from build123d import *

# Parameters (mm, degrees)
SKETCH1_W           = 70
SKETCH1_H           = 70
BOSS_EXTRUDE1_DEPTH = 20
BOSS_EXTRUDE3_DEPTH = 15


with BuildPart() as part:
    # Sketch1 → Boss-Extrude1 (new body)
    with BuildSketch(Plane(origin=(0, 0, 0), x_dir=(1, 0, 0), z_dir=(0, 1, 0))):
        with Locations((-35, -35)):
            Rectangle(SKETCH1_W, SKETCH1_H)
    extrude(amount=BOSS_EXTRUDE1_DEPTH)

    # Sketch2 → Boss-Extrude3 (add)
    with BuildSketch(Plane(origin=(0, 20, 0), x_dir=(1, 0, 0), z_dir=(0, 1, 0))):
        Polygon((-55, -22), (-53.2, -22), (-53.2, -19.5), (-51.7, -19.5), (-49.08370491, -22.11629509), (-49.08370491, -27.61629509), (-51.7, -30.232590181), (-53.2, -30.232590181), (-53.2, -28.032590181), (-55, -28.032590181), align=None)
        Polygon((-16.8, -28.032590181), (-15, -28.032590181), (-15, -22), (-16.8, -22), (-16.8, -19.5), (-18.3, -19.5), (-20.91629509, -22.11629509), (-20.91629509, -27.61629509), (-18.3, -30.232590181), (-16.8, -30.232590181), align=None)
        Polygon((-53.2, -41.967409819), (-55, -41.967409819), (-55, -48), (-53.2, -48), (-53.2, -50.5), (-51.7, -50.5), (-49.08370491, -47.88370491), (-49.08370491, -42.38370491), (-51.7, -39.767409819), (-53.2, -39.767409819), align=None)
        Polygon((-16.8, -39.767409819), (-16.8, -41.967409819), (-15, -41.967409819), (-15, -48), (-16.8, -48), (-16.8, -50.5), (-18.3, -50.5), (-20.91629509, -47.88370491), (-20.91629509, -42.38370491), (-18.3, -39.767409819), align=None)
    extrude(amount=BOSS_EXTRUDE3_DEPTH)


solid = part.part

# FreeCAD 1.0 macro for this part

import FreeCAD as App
import Part
import Sketcher
from FreeCAD import Vector

doc = App.newDocument("Part")
body = doc.addObject("PartDesign::Body", "Body")

# Sketch on XZ plane
sketch1 = body.newObject("Sketcher::SketchObject", "Sketch")
sketch1.AttachmentSupport = (doc.getObject("XZ_Plane"), [""])
sketch1.MapMode = "FlatFace"
sketch1.addGeometry([
    Part.LineSegment(Vector(-70, 0, 0), Vector(-70, 70, 0)),
    Part.LineSegment(Vector(-70, 70, 0), Vector(0, 70, 0)),
    Part.LineSegment(Vector(0, 70, 0), Vector(0, 0, 0)),
    Part.LineSegment(Vector(0, 0, 0), Vector(-70, 0, 0)),
], False)
sketch1.addConstraint([
    Sketcher.Constraint("Coincident", 0, 2, 1, 1),
    Sketcher.Constraint("Coincident", 1, 2, 2, 1),
    Sketcher.Constraint("Coincident", 2, 2, 3, 1),
    Sketcher.Constraint("Coincident", 3, 2, 0, 1),
    Sketcher.Constraint("Vertical", 0),
    Sketcher.Constraint("Horizontal", 1),
    Sketcher.Constraint("Vertical", 2),
    Sketcher.Constraint("Horizontal", 3),
    Sketcher.Constraint("Coincident", 2, 2, -1, 1),
    Sketcher.Constraint("Equal", 3, 0),
    Sketcher.Constraint("DistanceX", 1, 1, 1, 2, 70.0),
])
pad1 = body.newObject("PartDesign::Pad", "Pad")
pad1.Profile = sketch1
pad1.Length = 20
pad1.Reversed = True

# Sketch on XZ plane
sketch2 = body.newObject("Sketcher::SketchObject", "Sketch001")
sketch2.AttachmentSupport = (doc.getObject("XZ_Plane"), [""])
sketch2.MapMode = "FlatFace"
sketch2.AttachmentOffset = App.Placement(Vector(0, 0, -20), App.Rotation())
sketch2.addGeometry([
    Part.LineSegment(Vector(-53.2, 22, 0), Vector(-55, 22, 0)),  # 0
    Part.LineSegment(Vector(-55, 22, 0), Vector(-55, 28.03259, 0)),  # 1
    Part.LineSegment(Vector(-55, 28.03259, 0), Vector(-53.2, 28.03259, 0)),  # 2
    Part.LineSegment(Vector(-53.2, 28.03259, 0), Vector(-53.2, 30.23259, 0)),  # 3
    Part.LineSegment(Vector(-53.2, 30.23259, 0), Vector(-51.7, 30.23259, 0)),  # 4
    Part.LineSegment(Vector(-51.7, 30.23259, 0), Vector(-49.083705, 27.616295, 0)),  # 5
    Part.LineSegment(Vector(-49.083705, 27.616295, 0), Vector(-49.083705, 22.116295, 0)),  # 6
    Part.LineSegment(Vector(-49.083705, 22.116295, 0), Vector(-51.7, 19.5, 0)),  # 7
    Part.LineSegment(Vector(-51.7, 19.5, 0), Vector(-53.2, 19.5, 0)),  # 8
    Part.LineSegment(Vector(-53.2, 19.5, 0), Vector(-53.2, 22, 0)),  # 9
    Part.LineSegment(Vector(-16.8, 28.03259, 0), Vector(-15, 28.03259, 0)),  # 10
    Part.LineSegment(Vector(-15, 28.03259, 0), Vector(-15, 22, 0)),  # 11
    Part.LineSegment(Vector(-15, 22, 0), Vector(-16.8, 22, 0)),  # 12
    Part.LineSegment(Vector(-16.8, 22, 0), Vector(-16.8, 19.5, 0)),  # 13
    Part.LineSegment(Vector(-16.8, 19.5, 0), Vector(-18.3, 19.5, 0)),  # 14
    Part.LineSegment(Vector(-18.3, 19.5, 0), Vector(-20.916295, 22.116295, 0)),  # 15
    Part.LineSegment(Vector(-20.916295, 22.116295, 0), Vector(-20.916295, 27.616295, 0)),  # 16
    Part.LineSegment(Vector(-20.916295, 27.616295, 0), Vector(-18.3, 30.23259, 0)),  # 17
    Part.LineSegment(Vector(-18.3, 30.23259, 0), Vector(-16.8, 30.23259, 0)),  # 18
    Part.LineSegment(Vector(-16.8, 30.23259, 0), Vector(-16.8, 28.03259, 0)),  # 19
    Part.LineSegment(Vector(-53.2, 41.96741, 0), Vector(-55, 41.96741, 0)),  # 20
    Part.LineSegment(Vector(-55, 41.96741, 0), Vector(-55, 48, 0)),  # 21
    Part.LineSegment(Vector(-55, 48, 0), Vector(-53.2, 48, 0)),  # 22
    Part.LineSegment(Vector(-53.2, 48, 0), Vector(-53.2, 50.5, 0)),  # 23
    Part.LineSegment(Vector(-53.2, 50.5, 0), Vector(-51.7, 50.5, 0)),  # 24
    Part.LineSegment(Vector(-51.7, 50.5, 0), Vector(-49.083705, 47.883705, 0)),  # 25
    Part.LineSegment(Vector(-49.083705, 47.883705, 0), Vector(-49.083705, 42.383705, 0)),  # 26
    Part.LineSegment(Vector(-49.083705, 42.383705, 0), Vector(-51.7, 39.76741, 0)),  # 27
    Part.LineSegment(Vector(-51.7, 39.76741, 0), Vector(-53.2, 39.76741, 0)),  # 28
    Part.LineSegment(Vector(-53.2, 39.76741, 0), Vector(-53.2, 41.96741, 0)),  # 29
    Part.LineSegment(Vector(-16.8, 41.96741, 0), Vector(-16.8, 39.76741, 0)),  # 30
    Part.LineSegment(Vector(-16.8, 39.76741, 0), Vector(-18.3, 39.76741, 0)),  # 31
    Part.LineSegment(Vector(-18.3, 39.76741, 0), Vector(-20.916295, 42.383705, 0)),  # 32
    Part.LineSegment(Vector(-20.916295, 42.383705, 0), Vector(-20.916295, 47.883705, 0)),  # 33
    Part.LineSegment(Vector(-20.916295, 47.883705, 0), Vector(-18.3, 50.5, 0)),  # 34
    Part.LineSegment(Vector(-18.3, 50.5, 0), Vector(-16.8, 50.5, 0)),  # 35
    Part.LineSegment(Vector(-16.8, 50.5, 0), Vector(-16.8, 48, 0)),  # 36
    Part.LineSegment(Vector(-16.8, 48, 0), Vector(-15, 48, 0)),  # 37
    Part.LineSegment(Vector(-15, 48, 0), Vector(-15, 41.96741, 0)),  # 38
    Part.LineSegment(Vector(-15, 41.96741, 0), Vector(-16.8, 41.96741, 0)),  # 39
], False)
sketch2.addConstraint([
    Sketcher.Constraint("Coincident", 0, 2, 1, 1),
    Sketcher.Constraint("Coincident", 1, 2, 2, 1),
    Sketcher.Constraint("Coincident", 2, 2, 3, 1),
    Sketcher.Constraint("Coincident", 3, 2, 4, 1),
    Sketcher.Constraint("Coincident", 4, 2, 5, 1),
    Sketcher.Constraint("Coincident", 5, 2, 6, 1),
    Sketcher.Constraint("Coincident", 6, 2, 7, 1),
    Sketcher.Constraint("Coincident", 7, 2, 8, 1),
    Sketcher.Constraint("Coincident", 8, 2, 9, 1),
    Sketcher.Constraint("Coincident", 9, 2, 0, 1),
    Sketcher.Constraint("Coincident", 10, 2, 11, 1),
    Sketcher.Constraint("Coincident", 11, 2, 12, 1),
    Sketcher.Constraint("Coincident", 12, 2, 13, 1),
    Sketcher.Constraint("Coincident", 13, 2, 14, 1),
    Sketcher.Constraint("Coincident", 14, 2, 15, 1),
    Sketcher.Constraint("Coincident", 15, 2, 16, 1),
    Sketcher.Constraint("Coincident", 16, 2, 17, 1),
    Sketcher.Constraint("Coincident", 17, 2, 18, 1),
    Sketcher.Constraint("Coincident", 18, 2, 19, 1),
    Sketcher.Constraint("Coincident", 19, 2, 10, 1),
    Sketcher.Constraint("Coincident", 20, 2, 21, 1),
    Sketcher.Constraint("Coincident", 21, 2, 22, 1),
    Sketcher.Constraint("Coincident", 22, 2, 23, 1),
    Sketcher.Constraint("Coincident", 23, 2, 24, 1),
    Sketcher.Constraint("Coincident", 24, 2, 25, 1),
    Sketcher.Constraint("Coincident", 25, 2, 26, 1),
    Sketcher.Constraint("Coincident", 26, 2, 27, 1),
    Sketcher.Constraint("Coincident", 27, 2, 28, 1),
    Sketcher.Constraint("Coincident", 28, 2, 29, 1),
    Sketcher.Constraint("Coincident", 29, 2, 20, 1),
    Sketcher.Constraint("Coincident", 30, 2, 31, 1),
    Sketcher.Constraint("Coincident", 31, 2, 32, 1),
    Sketcher.Constraint("Coincident", 32, 2, 33, 1),
    Sketcher.Constraint("Coincident", 33, 2, 34, 1),
    Sketcher.Constraint("Coincident", 34, 2, 35, 1),
    Sketcher.Constraint("Coincident", 35, 2, 36, 1),
    Sketcher.Constraint("Coincident", 36, 2, 37, 1),
    Sketcher.Constraint("Coincident", 37, 2, 38, 1),
    Sketcher.Constraint("Coincident", 38, 2, 39, 1),
    Sketcher.Constraint("Coincident", 39, 2, 30, 1),
    Sketcher.Constraint("Horizontal", 0),
    Sketcher.Constraint("Vertical", 1),
    Sketcher.Constraint("Horizontal", 2),
    Sketcher.Constraint("Vertical", 3),
    Sketcher.Constraint("Horizontal", 4),
    Sketcher.Constraint("Vertical", 6),
    Sketcher.Constraint("Horizontal", 8),
    Sketcher.Constraint("Vertical", 9),
    Sketcher.Constraint("Horizontal", 10),
    Sketcher.Constraint("Vertical", 11),
    Sketcher.Constraint("Horizontal", 12),
    Sketcher.Constraint("Vertical", 13),
    Sketcher.Constraint("Horizontal", 14),
    Sketcher.Constraint("Vertical", 16),
    Sketcher.Constraint("Horizontal", 18),
    Sketcher.Constraint("Vertical", 19),
    Sketcher.Constraint("Horizontal", 20),
    Sketcher.Constraint("Vertical", 21),
    Sketcher.Constraint("Horizontal", 22),
    Sketcher.Constraint("Vertical", 23),
    Sketcher.Constraint("Horizontal", 24),
    Sketcher.Constraint("Vertical", 26),
    Sketcher.Constraint("Horizontal", 28),
    Sketcher.Constraint("Vertical", 29),
    Sketcher.Constraint("Vertical", 30),
    Sketcher.Constraint("Horizontal", 31),
    Sketcher.Constraint("Vertical", 33),
    Sketcher.Constraint("Horizontal", 35),
    Sketcher.Constraint("Vertical", 36),
    Sketcher.Constraint("Horizontal", 37),
    Sketcher.Constraint("Vertical", 38),
    Sketcher.Constraint("Horizontal", 39),
    Sketcher.Constraint("Perpendicular", 5, 7),
    Sketcher.Constraint("Perpendicular", 7, 15),
    Sketcher.Constraint("Perpendicular", 15, 17),
    Sketcher.Constraint("Perpendicular", 17, 25),
    Sketcher.Constraint("Perpendicular", 25, 27),
    Sketcher.Constraint("Perpendicular", 27, 32),
    Sketcher.Constraint("Perpendicular", 32, 34),
    Sketcher.Constraint("Horizontal", 2, 2, 10, 2),
    Sketcher.Constraint("Horizontal", 9, 2, 11, 2),
    Sketcher.Constraint("Horizontal", 8, 2, 13, 2),
    Sketcher.Constraint("Horizontal", 6, 2, 15, 2),
    Sketcher.Constraint("Horizontal", 5, 2, 16, 2),
    Sketcher.Constraint("Horizontal", 4, 2, 17, 2),
    Sketcher.Constraint("Horizontal", 28, 2, 30, 2),
    Sketcher.Constraint("Horizontal", 26, 2, 32, 2),
    Sketcher.Constraint("Horizontal", 25, 2, 33, 2),
    Sketcher.Constraint("Horizontal", 24, 2, 34, 2),
    Sketcher.Constraint("Horizontal", 22, 2, 36, 2),
    Sketcher.Constraint("Horizontal", 29, 2, 38, 2),
    Sketcher.Constraint("Vertical", 4, 2, 7, 2),
    Sketcher.Constraint("Vertical", 3, 2, 8, 2),
    Sketcher.Constraint("Vertical", 14, 2, 17, 2),
    Sketcher.Constraint("Vertical", 13, 2, 18, 2),
    Sketcher.Constraint("Vertical", 1, 2, 20, 2),
    Sketcher.Constraint("Vertical", 9, 2, 22, 2),
    Sketcher.Constraint("Vertical", 7, 2, 24, 2),
    Sketcher.Constraint("Vertical", 6, 2, 25, 2),
    Sketcher.Constraint("Vertical", 24, 2, 27, 2),
    Sketcher.Constraint("Vertical", 23, 2, 28, 2),
    Sketcher.Constraint("Vertical", 19, 2, 30, 2),
    Sketcher.Constraint("Vertical", 17, 2, 31, 2),
    Sketcher.Constraint("Vertical", 30, 2, 35, 2),
    Sketcher.Constraint("Vertical", 11, 2, 37, 2),
    Sketcher.Constraint("Equal", 2, 10),
    Sketcher.Constraint("Equal", 8, 14),
    Sketcher.Constraint("Equal", 11, 21),
    Sketcher.Constraint("Equal", 13, 23),
    Sketcher.Constraint("Equal", 16, 26),
    Sketcher.Constraint("DistanceX", 0, 2, 0, 1, 1.8),
    Sketcher.Constraint("DistanceX", 4, 1, 4, 2, 1.5),
    Sketcher.Constraint("DistanceY", 3, 1, 3, 2, 2.2),
    Sketcher.Constraint("DistanceY", 6, 2, 6, 1, 5.5),
    Sketcher.Constraint("DistanceY", 9, 1, 9, 2, 2.5),
    Sketcher.Constraint("DistanceX", 0, 2, -1, 1, 55.0),
    Sketcher.Constraint("DistanceY", -1, 1, 0, 2, 22.0),
    Sketcher.Constraint("DistanceX", 10, 2, -1, 1, 15.0),
    Sketcher.Constraint("DistanceY", -1, 1, 21, 2, 48.0),
    Sketcher.Constraint("Distance", 5, 3.7),
])
pad2 = body.newObject("PartDesign::Pad", "Pad001")
pad2.Profile = sketch2
pad2.Length = 15
pad2.Reversed = True

doc.recompute()
